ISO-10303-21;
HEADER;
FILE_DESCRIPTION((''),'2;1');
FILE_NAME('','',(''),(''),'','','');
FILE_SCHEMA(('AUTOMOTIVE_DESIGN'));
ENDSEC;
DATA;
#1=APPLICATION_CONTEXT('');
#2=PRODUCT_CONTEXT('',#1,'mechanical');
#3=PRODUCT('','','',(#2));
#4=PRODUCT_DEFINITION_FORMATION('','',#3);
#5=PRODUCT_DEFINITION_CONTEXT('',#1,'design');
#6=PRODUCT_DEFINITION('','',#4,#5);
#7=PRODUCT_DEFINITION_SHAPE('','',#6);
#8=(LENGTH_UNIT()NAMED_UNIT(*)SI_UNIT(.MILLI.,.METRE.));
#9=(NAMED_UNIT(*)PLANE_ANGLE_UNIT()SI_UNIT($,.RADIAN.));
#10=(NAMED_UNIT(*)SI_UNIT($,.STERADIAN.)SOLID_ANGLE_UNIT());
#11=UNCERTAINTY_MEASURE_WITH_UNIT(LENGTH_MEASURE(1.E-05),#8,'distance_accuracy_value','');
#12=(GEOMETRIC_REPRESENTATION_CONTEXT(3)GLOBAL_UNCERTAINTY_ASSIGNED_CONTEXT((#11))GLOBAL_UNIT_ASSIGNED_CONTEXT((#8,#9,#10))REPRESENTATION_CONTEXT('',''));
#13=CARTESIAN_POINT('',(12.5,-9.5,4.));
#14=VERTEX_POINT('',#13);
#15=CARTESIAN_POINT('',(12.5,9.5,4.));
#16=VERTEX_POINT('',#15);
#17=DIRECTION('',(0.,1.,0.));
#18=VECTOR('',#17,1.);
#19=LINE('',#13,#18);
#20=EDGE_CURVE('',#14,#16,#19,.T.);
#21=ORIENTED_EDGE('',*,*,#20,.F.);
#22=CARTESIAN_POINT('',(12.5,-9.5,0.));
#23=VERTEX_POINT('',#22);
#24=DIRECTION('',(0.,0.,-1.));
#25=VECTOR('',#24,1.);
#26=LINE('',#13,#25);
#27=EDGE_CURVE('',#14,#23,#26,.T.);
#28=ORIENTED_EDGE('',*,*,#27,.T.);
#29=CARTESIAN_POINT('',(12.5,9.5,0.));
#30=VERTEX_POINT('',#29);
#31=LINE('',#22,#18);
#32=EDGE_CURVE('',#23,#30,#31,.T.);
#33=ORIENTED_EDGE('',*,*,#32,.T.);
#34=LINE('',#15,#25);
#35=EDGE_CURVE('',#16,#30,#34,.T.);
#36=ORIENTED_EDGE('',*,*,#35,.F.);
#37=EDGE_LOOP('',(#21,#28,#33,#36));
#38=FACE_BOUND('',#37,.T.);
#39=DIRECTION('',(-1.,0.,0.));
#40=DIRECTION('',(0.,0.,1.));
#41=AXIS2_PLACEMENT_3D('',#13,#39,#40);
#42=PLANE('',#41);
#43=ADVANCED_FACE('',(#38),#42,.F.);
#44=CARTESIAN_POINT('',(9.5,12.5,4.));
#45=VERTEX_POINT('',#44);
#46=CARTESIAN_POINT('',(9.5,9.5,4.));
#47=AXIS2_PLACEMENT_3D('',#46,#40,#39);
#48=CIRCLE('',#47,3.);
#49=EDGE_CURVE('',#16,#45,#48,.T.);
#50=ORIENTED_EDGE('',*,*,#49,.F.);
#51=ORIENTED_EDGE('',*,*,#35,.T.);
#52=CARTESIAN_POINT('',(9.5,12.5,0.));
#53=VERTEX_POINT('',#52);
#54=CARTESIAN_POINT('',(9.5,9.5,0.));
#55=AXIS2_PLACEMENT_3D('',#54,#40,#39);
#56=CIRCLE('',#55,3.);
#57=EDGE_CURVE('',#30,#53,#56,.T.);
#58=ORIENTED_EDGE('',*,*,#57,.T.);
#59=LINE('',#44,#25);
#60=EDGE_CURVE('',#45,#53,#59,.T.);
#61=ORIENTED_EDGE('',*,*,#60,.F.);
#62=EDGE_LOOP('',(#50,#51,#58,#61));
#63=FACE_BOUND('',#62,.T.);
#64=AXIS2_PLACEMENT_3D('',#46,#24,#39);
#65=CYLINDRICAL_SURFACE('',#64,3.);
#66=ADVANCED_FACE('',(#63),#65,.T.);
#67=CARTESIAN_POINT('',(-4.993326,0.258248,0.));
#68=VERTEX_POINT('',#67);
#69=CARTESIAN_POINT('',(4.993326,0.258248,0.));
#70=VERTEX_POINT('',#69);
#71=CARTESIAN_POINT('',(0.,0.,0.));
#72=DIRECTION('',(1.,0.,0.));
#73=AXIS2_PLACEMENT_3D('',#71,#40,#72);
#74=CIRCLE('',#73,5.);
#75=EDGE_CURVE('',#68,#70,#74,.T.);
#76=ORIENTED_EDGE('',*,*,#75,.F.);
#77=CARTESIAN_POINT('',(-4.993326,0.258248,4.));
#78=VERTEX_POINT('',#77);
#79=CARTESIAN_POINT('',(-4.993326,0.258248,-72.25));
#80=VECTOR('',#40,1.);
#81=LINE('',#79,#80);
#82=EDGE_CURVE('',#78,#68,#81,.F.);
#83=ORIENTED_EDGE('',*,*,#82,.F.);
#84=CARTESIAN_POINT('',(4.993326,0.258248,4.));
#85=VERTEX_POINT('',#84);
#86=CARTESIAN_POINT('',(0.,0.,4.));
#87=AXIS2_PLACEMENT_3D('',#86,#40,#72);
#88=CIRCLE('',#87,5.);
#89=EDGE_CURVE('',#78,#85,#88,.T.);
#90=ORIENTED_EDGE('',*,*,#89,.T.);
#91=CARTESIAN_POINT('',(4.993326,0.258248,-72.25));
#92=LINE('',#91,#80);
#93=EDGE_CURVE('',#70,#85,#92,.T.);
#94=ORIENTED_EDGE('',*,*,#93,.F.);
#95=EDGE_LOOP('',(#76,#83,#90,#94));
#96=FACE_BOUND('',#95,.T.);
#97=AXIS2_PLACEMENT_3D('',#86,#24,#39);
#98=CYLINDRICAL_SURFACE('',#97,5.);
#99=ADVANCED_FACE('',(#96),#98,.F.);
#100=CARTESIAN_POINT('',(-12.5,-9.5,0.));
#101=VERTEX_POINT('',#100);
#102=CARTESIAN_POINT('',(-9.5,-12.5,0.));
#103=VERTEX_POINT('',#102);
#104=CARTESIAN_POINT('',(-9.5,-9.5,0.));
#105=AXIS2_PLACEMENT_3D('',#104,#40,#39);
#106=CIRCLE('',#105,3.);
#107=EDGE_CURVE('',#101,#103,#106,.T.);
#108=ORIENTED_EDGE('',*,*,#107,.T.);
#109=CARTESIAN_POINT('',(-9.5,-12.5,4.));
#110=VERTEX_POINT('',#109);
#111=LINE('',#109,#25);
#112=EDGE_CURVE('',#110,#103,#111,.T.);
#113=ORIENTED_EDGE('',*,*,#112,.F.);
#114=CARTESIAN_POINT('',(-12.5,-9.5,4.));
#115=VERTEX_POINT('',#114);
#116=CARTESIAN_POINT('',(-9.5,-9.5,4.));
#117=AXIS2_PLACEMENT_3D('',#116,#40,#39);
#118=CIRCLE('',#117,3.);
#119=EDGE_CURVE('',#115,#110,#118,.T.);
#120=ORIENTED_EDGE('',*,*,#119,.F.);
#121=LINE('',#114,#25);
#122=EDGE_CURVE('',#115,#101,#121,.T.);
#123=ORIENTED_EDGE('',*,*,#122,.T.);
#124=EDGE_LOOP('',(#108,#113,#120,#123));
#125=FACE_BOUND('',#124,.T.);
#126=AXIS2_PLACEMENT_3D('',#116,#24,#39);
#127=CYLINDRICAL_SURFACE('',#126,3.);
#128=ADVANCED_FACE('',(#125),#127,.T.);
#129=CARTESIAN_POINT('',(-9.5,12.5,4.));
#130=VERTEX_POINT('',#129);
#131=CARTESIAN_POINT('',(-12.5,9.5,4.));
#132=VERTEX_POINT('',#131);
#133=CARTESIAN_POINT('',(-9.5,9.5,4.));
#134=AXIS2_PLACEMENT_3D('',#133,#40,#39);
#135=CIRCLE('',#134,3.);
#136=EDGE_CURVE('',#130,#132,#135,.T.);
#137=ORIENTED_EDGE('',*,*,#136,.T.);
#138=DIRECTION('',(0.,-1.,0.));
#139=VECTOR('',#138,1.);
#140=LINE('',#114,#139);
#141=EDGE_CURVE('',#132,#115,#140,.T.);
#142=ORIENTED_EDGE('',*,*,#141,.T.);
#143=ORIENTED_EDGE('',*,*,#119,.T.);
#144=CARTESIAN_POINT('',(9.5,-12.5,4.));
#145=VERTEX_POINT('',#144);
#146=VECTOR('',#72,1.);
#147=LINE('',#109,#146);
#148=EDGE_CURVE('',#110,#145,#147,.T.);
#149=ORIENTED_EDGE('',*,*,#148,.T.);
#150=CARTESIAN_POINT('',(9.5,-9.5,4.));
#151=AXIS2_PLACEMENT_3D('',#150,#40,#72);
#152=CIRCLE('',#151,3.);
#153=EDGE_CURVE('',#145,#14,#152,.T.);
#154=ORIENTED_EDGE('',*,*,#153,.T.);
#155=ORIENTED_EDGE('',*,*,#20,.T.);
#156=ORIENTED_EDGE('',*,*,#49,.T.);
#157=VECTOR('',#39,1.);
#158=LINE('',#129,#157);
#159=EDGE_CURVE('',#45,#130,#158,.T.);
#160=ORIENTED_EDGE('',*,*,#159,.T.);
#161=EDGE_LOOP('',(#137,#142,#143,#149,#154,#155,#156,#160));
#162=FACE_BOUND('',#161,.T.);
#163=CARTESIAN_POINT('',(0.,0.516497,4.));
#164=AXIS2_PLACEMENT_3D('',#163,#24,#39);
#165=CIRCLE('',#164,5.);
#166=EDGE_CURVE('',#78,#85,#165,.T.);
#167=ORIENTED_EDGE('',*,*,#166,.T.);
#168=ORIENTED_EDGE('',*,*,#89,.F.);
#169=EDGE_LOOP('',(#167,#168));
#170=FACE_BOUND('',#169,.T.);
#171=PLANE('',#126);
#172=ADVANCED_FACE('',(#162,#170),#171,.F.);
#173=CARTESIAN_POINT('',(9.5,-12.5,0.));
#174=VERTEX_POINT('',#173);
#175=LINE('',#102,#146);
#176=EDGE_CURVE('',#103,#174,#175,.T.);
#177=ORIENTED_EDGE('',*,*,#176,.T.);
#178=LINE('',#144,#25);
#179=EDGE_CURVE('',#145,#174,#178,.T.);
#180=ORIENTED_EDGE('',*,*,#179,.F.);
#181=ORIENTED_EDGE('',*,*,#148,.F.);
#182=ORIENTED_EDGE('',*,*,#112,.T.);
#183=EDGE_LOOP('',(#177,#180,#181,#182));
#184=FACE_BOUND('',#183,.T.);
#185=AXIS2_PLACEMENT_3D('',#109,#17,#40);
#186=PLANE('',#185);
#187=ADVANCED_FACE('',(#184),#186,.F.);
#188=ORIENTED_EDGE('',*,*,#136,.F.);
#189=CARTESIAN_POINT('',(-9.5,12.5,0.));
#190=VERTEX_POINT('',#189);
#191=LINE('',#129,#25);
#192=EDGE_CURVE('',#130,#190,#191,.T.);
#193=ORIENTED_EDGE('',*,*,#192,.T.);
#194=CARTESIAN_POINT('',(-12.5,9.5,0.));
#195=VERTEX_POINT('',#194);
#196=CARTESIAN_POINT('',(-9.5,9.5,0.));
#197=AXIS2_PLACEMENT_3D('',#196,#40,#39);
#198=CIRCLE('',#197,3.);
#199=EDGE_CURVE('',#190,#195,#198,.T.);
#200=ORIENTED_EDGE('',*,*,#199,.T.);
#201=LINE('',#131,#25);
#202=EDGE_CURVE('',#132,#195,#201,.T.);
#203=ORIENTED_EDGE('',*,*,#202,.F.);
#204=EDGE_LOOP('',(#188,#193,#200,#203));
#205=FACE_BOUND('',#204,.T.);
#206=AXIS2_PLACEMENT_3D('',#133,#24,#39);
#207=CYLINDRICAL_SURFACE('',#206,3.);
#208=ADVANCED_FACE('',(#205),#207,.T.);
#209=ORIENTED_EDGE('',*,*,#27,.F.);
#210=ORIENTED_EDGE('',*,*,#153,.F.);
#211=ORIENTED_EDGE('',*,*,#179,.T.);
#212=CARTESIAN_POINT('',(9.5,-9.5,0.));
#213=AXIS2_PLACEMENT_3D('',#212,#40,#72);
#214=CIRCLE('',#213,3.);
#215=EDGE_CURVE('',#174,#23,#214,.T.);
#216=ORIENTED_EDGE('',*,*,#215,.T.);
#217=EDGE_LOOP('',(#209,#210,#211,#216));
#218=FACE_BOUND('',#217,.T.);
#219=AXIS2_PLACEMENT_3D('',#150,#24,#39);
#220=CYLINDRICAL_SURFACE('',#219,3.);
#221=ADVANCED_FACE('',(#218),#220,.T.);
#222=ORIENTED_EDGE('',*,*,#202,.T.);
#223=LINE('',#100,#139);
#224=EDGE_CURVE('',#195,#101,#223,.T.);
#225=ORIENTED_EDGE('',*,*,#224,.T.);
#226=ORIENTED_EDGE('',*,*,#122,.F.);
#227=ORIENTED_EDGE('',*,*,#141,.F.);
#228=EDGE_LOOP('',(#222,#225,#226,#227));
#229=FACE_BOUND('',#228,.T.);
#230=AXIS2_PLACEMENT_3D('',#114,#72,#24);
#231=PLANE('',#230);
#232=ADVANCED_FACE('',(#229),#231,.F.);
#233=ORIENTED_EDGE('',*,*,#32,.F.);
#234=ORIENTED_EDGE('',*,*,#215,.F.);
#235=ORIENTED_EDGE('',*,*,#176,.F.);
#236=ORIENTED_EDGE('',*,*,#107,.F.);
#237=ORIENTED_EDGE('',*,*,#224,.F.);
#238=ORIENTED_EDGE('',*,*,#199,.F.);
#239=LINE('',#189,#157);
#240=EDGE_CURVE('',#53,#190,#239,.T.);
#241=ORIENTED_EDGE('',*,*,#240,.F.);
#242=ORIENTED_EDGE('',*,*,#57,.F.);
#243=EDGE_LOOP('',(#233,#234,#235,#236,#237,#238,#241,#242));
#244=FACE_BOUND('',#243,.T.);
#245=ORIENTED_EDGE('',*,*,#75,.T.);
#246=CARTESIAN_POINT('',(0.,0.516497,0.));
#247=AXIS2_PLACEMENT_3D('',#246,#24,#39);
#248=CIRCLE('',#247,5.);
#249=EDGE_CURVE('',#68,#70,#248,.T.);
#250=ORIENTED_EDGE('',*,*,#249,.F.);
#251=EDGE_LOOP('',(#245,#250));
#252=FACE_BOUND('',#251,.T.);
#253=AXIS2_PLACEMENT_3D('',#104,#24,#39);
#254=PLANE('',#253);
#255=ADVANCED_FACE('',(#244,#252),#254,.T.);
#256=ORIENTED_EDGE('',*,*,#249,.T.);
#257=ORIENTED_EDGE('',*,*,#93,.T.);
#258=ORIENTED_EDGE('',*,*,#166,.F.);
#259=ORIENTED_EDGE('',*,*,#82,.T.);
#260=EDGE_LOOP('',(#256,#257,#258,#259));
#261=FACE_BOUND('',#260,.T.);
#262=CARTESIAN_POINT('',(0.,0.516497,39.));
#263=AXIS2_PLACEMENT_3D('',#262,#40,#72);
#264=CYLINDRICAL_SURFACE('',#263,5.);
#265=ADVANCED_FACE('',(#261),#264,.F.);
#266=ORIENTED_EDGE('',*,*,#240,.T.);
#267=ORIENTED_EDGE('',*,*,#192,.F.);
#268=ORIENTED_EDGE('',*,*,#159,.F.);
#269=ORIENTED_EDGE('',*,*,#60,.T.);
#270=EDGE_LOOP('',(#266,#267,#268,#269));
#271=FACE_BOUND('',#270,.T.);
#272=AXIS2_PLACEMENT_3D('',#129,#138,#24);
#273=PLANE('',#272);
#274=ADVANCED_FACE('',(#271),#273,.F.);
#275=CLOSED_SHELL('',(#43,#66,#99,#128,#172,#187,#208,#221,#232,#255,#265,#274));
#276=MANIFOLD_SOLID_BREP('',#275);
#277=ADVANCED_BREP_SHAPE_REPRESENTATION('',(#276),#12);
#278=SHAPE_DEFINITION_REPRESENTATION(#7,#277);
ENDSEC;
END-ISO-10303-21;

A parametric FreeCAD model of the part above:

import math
import FreeCAD as App
import Part
import Sketcher
Q = App.Units.Quantity

doc = App.newDocument("Part")
body = doc.addObject("PartDesign::Body", "Body")

# Sketch on XY plane
sketch1 = doc.addObject("Sketcher::SketchObject", "Sketch")
body.addObject(sketch1)
sketch1.AttachmentSupport = (doc.XY_Plane, [""])
sketch1.MapMode = "FlatFace"
sketch1.addGeometry(Part.LineSegment(App.Vector(-9.5, -12.5, 0), App.Vector(9.5, -12.5, 0)), False)
sketch1.addGeometry(Part.ArcOfCircle(Part.Circle(App.Vector(9.5, -9.5, 0), App.Vector(0, 0, 1), 3), math.radians(-90), math.radians(0)), False)
sketch1.addGeometry(Part.LineSegment(App.Vector(12.5, -9.5, 0), App.Vector(12.5, 9.5, 0)), False)
sketch1.addGeometry(Part.ArcOfCircle(Part.Circle(App.Vector(9.5, 9.5, 0), App.Vector(0, 0, 1), 3), math.radians(0), math.radians(90)), False)
sketch1.addGeometry(Part.LineSegment(App.Vector(9.5, 12.5, 0), App.Vector(-9.5, 12.5, 0)), False)
sketch1.addGeometry(Part.ArcOfCircle(Part.Circle(App.Vector(-9.5, 9.5, 0), App.Vector(0, 0, 1), 3), math.radians(90), math.radians(180)), False)
sketch1.addGeometry(Part.LineSegment(App.Vector(-12.5, 9.5, 0), App.Vector(-12.5, -9.5, 0)), False)
sketch1.addGeometry(Part.ArcOfCircle(Part.Circle(App.Vector(-9.5, -9.5, 0), App.Vector(0, 0, 1), 3), math.radians(180), math.radians(270)), False)
sketch1.addGeometry(Part.Circle(App.Vector(0, 0, 0), App.Vector(0, 0, 1), 5), False)
sketch1.addConstraint(Sketcher.Constraint("Tangent", 0, 2, 1, 1))
sketch1.addConstraint(Sketcher.Constraint("Tangent", 1, 2, 2, 1))
sketch1.addConstraint(Sketcher.Constraint("Tangent", 2, 2, 3, 1))
sketch1.addConstraint(Sketcher.Constraint("Tangent", 3, 2, 4, 1))
sketch1.addConstraint(Sketcher.Constraint("Tangent", 4, 2, 5, 1))
sketch1.addConstraint(Sketcher.Constraint("Tangent", 5, 2, 6, 1))
sketch1.addConstraint(Sketcher.Constraint("Tangent", 6, 2, 7, 1))
sketch1.addConstraint(Sketcher.Constraint("Tangent", 7, 2, 0, 1))
sketch1.addConstraint(Sketcher.Constraint("Horizontal", 0))
sketch1.addConstraint(Sketcher.Constraint("Vertical", 2))
sketch1.addConstraint(Sketcher.Constraint("Horizontal", 4))
sketch1.addConstraint(Sketcher.Constraint("Vertical", 6))
sketch1.addConstraint(Sketcher.Constraint("Coincident", 8, 3, -1, 1))
sketch1.addConstraint(Sketcher.Constraint("Equal", 1, 3))
sketch1.addConstraint(Sketcher.Constraint("Equal", 3, 5))
sketch1.addConstraint(Sketcher.Constraint("Equal", 5, 7))
sketch1.addConstraint(Sketcher.Constraint("Symmetric", 1, 3, 5, 3, -1, 1))
sketch1.addConstraint(Sketcher.Constraint("Equal", 4, 2))
sketch1.addConstraint(Sketcher.Constraint("Diameter", 8, Q("10 mm")))
sketch1.addConstraint(Sketcher.Constraint("Radius", 1, Q("3 mm")))
sketch1.addConstraint(Sketcher.Constraint("DistanceX", 0, 1, 0, 2, Q("19 mm")))
pad1 = doc.addObject("PartDesign::Pad", "Pad")
body.addObject(pad1)
pad1.Profile = sketch1
pad1.Length = 4

# Sketch on XY plane
sketch2 = doc.addObject("Sketcher::SketchObject", "Sketch001")
body.addObject(sketch2)
sketch2.AttachmentSupport = (doc.XY_Plane, [""])
sketch2.MapMode = "FlatFace"
sketch2.AttachmentOffset = App.Placement(App.Vector(0, 0, 39), App.Rotation())
sketch2.addGeometry(Part.Circle(App.Vector(0, 0.516497, 0), App.Vector(0, 0, 1), 5), False)
sketch2.addGeometry(Part.Circle(App.Vector(0, -99.483503, 0), App.Vector(0, 0, 1), 5), False)
sketch2.addGeometry(Part.Circle(App.Vector(0, -199.483503, 0), App.Vector(0, 0, 1), 5), False)
sketch2.addConstraint(Sketcher.Constraint("Equal", 0, 1))
sketch2.addConstraint(Sketcher.Constraint("Equal", 1, 2))
sketch2.addConstraint(Sketcher.Constraint("PointOnObject", 0, 3, -2))
sketch2.addConstraint(Sketcher.Constraint("PointOnObject", 1, 3, -2))
sketch2.addConstraint(Sketcher.Constraint("PointOnObject", 2, 3, -2))
sketch2.addConstraint(Sketcher.Constraint("Diameter", 0, Q("10 mm")))
sketch2.addConstraint(Sketcher.Constraint("DistanceY", 1, 3, 0, 3, Q("100 mm")))
sketch2.addConstraint(Sketcher.Constraint("DistanceY", 2, 3, 1, 3, Q("100 mm")))
sketch2.addConstraint(Sketcher.Constraint("DistanceY", -1, 1, 0, 3, Q("0.516497 mm")))
doc.recompute()
hole = doc.addObject("PartDesign::Hole", "Hole")
body.addObject(hole)
hole.Profile = sketch2
hole.ThreadType = "None"
hole.Diameter = 10
hole.DepthType = "Dimension"
hole.Depth = 222.5
hole.DrillPoint = "Angled"
hole.DrillPointAngle = 118

doc.recompute()
